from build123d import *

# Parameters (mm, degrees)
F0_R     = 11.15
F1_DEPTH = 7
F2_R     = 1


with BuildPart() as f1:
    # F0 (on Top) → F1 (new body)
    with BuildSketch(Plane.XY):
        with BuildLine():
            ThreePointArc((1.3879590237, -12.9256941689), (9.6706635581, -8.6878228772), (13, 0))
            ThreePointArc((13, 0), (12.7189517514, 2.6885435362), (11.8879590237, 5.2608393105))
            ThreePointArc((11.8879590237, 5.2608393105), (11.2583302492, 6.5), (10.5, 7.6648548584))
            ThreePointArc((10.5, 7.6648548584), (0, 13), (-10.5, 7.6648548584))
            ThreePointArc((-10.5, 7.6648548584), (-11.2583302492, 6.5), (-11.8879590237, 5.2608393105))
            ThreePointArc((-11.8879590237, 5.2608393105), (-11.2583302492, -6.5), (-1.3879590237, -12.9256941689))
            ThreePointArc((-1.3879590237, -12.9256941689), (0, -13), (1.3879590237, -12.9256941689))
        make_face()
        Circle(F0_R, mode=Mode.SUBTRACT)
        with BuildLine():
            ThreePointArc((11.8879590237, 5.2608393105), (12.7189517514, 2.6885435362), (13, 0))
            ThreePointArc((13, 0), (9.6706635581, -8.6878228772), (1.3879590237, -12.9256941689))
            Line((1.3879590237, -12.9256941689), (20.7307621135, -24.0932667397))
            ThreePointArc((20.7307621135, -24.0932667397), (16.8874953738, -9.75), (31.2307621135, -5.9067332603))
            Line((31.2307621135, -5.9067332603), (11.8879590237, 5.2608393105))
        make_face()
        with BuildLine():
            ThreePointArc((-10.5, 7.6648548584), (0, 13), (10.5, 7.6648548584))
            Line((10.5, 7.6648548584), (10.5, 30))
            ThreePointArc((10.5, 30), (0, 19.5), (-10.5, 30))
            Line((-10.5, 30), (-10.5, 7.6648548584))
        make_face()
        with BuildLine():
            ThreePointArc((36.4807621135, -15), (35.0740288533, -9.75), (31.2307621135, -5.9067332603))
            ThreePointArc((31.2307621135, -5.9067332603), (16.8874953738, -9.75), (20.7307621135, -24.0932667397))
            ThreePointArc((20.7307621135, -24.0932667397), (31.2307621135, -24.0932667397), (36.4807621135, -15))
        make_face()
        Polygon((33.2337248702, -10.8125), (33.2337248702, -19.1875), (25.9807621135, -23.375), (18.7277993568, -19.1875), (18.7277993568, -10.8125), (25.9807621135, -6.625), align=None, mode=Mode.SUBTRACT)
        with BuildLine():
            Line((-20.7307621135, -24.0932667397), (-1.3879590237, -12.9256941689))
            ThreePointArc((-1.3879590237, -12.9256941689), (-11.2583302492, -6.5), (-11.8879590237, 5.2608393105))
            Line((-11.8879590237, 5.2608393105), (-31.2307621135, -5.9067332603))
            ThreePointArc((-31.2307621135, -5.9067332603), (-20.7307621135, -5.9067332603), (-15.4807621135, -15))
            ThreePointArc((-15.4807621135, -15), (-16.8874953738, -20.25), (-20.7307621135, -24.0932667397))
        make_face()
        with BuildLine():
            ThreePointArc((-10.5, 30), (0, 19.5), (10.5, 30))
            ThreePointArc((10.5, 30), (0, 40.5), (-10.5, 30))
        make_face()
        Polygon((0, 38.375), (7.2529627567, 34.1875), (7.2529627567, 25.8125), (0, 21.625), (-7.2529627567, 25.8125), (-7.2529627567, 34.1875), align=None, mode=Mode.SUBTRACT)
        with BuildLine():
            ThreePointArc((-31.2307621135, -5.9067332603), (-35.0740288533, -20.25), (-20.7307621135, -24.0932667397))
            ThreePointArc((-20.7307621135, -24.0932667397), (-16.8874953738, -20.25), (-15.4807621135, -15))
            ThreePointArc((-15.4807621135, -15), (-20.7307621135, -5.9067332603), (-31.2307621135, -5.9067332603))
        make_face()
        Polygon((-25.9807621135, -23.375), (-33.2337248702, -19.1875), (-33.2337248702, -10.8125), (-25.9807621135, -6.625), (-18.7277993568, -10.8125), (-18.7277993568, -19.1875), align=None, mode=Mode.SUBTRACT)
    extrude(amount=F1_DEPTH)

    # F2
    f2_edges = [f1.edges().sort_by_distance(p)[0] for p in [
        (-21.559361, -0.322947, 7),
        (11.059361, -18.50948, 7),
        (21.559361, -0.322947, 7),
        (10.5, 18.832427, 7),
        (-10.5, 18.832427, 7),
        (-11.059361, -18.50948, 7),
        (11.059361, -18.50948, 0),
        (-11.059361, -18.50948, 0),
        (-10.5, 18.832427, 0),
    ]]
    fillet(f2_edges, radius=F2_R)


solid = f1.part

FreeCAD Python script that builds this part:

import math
import FreeCAD as App
import Part
import Sketcher
Q = App.Units.Quantity


def edges_at(feature, points):
    """Names of the edges that pass closest to the given points."""
    edges = feature.Shape.Edges
    near = lambda p: min(range(len(edges)), key=lambda i: edges[i].distToShape(Part.Vertex(*p))[0])
    return sorted({f"Edge{near(p) + 1}" for p in points})


def add_polygon(sketch, points):
    """Adds a closed chain of lines whose ends are joined by coincident constraints."""
    first, n = sketch.GeometryCount, len(points)
    for a, b in zip(points, points[1:] + points[:1]):
        sketch.addGeometry(Part.LineSegment(App.Vector(*a, 0), App.Vector(*b, 0)), False)
    for i in range(n):
        sketch.addConstraint(Sketcher.Constraint("Coincident", first + i, 2, first + (i + 1) % n, 1))

doc = App.newDocument("Part")
body = doc.addObject("PartDesign::Body", "Body")

# Sketch on XY plane
sketch1 = body.newObject("Sketcher::SketchObject", "Sketch")
sketch1.AttachmentSupport = (doc.getObject("XY_Plane"), [""])
sketch1.MapMode = "FlatFace"
sketch1.addGeometry(Part.ArcOfCircle(Part.Circle(App.Vector(0, 0, 0), App.Vector(0, 0, 1), 13), math.radians(-96.13), math.radians(-83.87)), False)  # 0
sketch1.addGeometry(Part.LineSegment(App.Vector(1.4, -12.9, 0), App.Vector(20.7, -24.1, 0)), False)  # 1
sketch1.addGeometry(Part.ArcOfCircle(Part.Circle(App.Vector(26, -15, 0), App.Vector(0, 0, 1), 10.5), math.radians(-120), math.radians(0)), False)  # 2
sketch1.addGeometry(Part.ArcOfCircle(Part.Circle(App.Vector(26, -15, 0), App.Vector(0, 0, 1), 10.5), math.radians(0), math.radians(60)), False)  # 3
sketch1.addGeometry(Part.LineSegment(App.Vector(31.2, -5.9, 0), App.Vector(11.9, 5.3, 0)), False)  # 4
sketch1.addGeometry(Part.ArcOfCircle(Part.Circle(App.Vector(0, 0, 0), App.Vector(0, 0, 1), 13), math.radians(23.87), math.radians(36.13)), False)  # 5
sketch1.addGeometry(Part.LineSegment(App.Vector(10.5, 7.7, 0), App.Vector(10.5, 30, 0)), False)  # 6
sketch1.addGeometry(Part.ArcOfCircle(Part.Circle(App.Vector(0, 30, 0), App.Vector(0, 0, 1), 10.5), math.radians(0), math.radians(180)), False)  # 7
sketch1.addGeometry(Part.LineSegment(App.Vector(-10.5, 30, 0), App.Vector(-10.5, 7.7, 0)), False)  # 8
sketch1.addGeometry(Part.ArcOfCircle(Part.Circle(App.Vector(0, 0, 0), App.Vector(0, 0, 1), 13), math.radians(143.87), math.radians(156.13)), False)  # 9
sketch1.addGeometry(Part.LineSegment(App.Vector(-11.9, 5.3, 0), App.Vector(-31.2, -5.9, 0)), False)  # 10
sketch1.addGeometry(Part.ArcOfCircle(Part.Circle(App.Vector(-26, -15, 0), App.Vector(0, 0, 1), 10.5), math.radians(120), math.radians(300)), False)  # 11
sketch1.addGeometry(Part.LineSegment(App.Vector(-20.7, -24.1, 0), App.Vector(-1.4, -12.9, 0)), False)  # 12
add_polygon(sketch1, [(-18.7, -19.2), (-26, -23.4), (-33.2, -19.2), (-33.2, -10.8), (-26, -6.6), (-18.7, -10.8)])  # lines 13-18
sketch1.addGeometry(Part.Circle(App.Vector(0, 0, 0), App.Vector(0, 0, 1), 11.2), False)  # 19
add_polygon(sketch1, [(26, -6.6), (33.2, -10.8), (33.2, -19.2), (26, -23.4), (18.7, -19.2), (18.7, -10.8)])  # lines 20-25
add_polygon(sketch1, [(-7.3, 34.2), (0, 38.4), (7.3, 34.2), (7.3, 25.8), (0, 21.6), (-7.3, 25.8)])  # lines 26-31
sketch1.addConstraint([
    Sketcher.Constraint("Coincident", 0, 2, 1, 1),
    Sketcher.Constraint("Tangent", 1, 2, 2, 1),
    Sketcher.Constraint("Tangent", 2, 2, 3, 1),
    Sketcher.Constraint("Tangent", 3, 2, 4, 1),
    Sketcher.Constraint("Coincident", 4, 2, 5, 1),
    Sketcher.Constraint("Coincident", 5, 2, 6, 1),
    Sketcher.Constraint("Tangent", 6, 2, 7, 1),
    Sketcher.Constraint("Tangent", 7, 2, 8, 1),
    Sketcher.Constraint("Coincident", 8, 2, 9, 1),
    Sketcher.Constraint("Coincident", 9, 2, 10, 1),
    Sketcher.Constraint("Tangent", 10, 2, 11, 1),
    Sketcher.Constraint("Tangent", 11, 2, 12, 1),
    Sketcher.Constraint("Coincident", 12, 2, 0, 1),
    Sketcher.Constraint("Vertical", 6),
    Sketcher.Constraint("Vertical", 8),
    Sketcher.Constraint("Vertical", 15),
    Sketcher.Constraint("Vertical", 18),
    Sketcher.Constraint("Vertical", 21),
    Sketcher.Constraint("Vertical", 24),
    Sketcher.Constraint("Vertical", 28),
    Sketcher.Constraint("Vertical", 31),
    Sketcher.Constraint("Coincident", 0, 3, -1, 1),
    Sketcher.Constraint("Coincident", 5, 3, -1, 1),
    Sketcher.Constraint("Coincident", 9, 3, -1, 1),
    Sketcher.Constraint("Coincident", 19, 3, -1, 1),
    Sketcher.Constraint("Equal", 2, 3),
    Sketcher.Constraint("Equal", 0, 5),
    Sketcher.Constraint("Equal", 3, 7),
    Sketcher.Constraint("Equal", 5, 9),
    Sketcher.Constraint("Equal", 7, 11),
    Sketcher.Constraint("Symmetric", 2, 3, 11, 3, -2),
    Sketcher.Constraint("Symmetric", 15, 2, 20, 2, -2),
    Sketcher.Constraint("Symmetric", 13, 2, 22, 2, -2),
    Sketcher.Constraint("Symmetric", 18, 2, 23, 2, -2),
    Sketcher.Constraint("Symmetric", 16, 2, 25, 2, -2),
    Sketcher.Constraint("Symmetric", 28, 2, 30, 2, -2),
    Sketcher.Constraint("PointOnObject", 7, 3, -2),
    Sketcher.Constraint("PointOnObject", 26, 2, -2),
    Sketcher.Constraint("PointOnObject", 29, 2, -2),
    Sketcher.Constraint("Parallel", 1, 4),
    Sketcher.Constraint("Parallel", 10, 12),
    Sketcher.Constraint("Parallel", 12, 13),
    Sketcher.Constraint("Parallel", 4, 14),
    Sketcher.Constraint("Parallel", 13, 16),
    Sketcher.Constraint("Parallel", 14, 17),
    Sketcher.Constraint("Parallel", 17, 20),
    Sketcher.Constraint("Parallel", 16, 22),
    Sketcher.Constraint("Parallel", 22, 25),
    Sketcher.Constraint("Parallel", 25, 26),
    Sketcher.Constraint("Parallel", 23, 27),
    Sketcher.Constraint("Parallel", 26, 29),
    Sketcher.Constraint("Horizontal", 11, 3, 2, 2),
    Sketcher.Constraint("Horizontal", 15, 2, 17, 2),
    Sketcher.Constraint("Horizontal", 14, 2, 18, 2),
    Sketcher.Constraint("Vertical", 11, 3, 13, 2),
    Sketcher.Constraint("Equal", 24, 28),
    Sketcher.Constraint("Equal", 1, 4),
    Sketcher.Constraint("Equal", 25, 26),
    Sketcher.Constraint("Radius", 0, 13.0),
    Sketcher.Constraint("Diameter", 19, 22.3),
    Sketcher.Constraint("Radius", 2, 10.5),
    Sketcher.Constraint("Angle", 1, Q("-30 deg")),
    Sketcher.Constraint("DistanceY", 2, 3, -1, 1, 15.0),
    Sketcher.Constraint("DistanceY", -1, 1, 7, 3, 30.0),
    Sketcher.Constraint("DistanceY", 15, 1, 15, 2, 8.375),
    Sketcher.Constraint("DistanceY", 13, 2, 16, 2, 16.75),
    Sketcher.Constraint("DistanceY", 13, 2, -1, 1, 23.375),
    Sketcher.Constraint("DistanceY", -1, 1, 26, 2, 38.375),
])
pad1 = body.newObject("PartDesign::Pad", "Pad")
pad1.Profile = sketch1
pad1.Length = 7
doc.recompute()

fillet = body.newObject("PartDesign::Fillet", "Fillet")
fillet.Base = (pad1, edges_at(pad1, [
    (-21.559, -0.323, 7),
    (11.059, -18.509, 7),
    (21.559, -0.323, 7),
    (10.5, 18.832, 7),
    (-10.5, 18.832, 7),
    (-11.059, -18.509, 7),
    (11.059, -18.509, 0),
    (-11.059, -18.509, 0),
    (-10.5, 18.832, 0),
]))
fillet.Radius = 1

doc.recompute()
